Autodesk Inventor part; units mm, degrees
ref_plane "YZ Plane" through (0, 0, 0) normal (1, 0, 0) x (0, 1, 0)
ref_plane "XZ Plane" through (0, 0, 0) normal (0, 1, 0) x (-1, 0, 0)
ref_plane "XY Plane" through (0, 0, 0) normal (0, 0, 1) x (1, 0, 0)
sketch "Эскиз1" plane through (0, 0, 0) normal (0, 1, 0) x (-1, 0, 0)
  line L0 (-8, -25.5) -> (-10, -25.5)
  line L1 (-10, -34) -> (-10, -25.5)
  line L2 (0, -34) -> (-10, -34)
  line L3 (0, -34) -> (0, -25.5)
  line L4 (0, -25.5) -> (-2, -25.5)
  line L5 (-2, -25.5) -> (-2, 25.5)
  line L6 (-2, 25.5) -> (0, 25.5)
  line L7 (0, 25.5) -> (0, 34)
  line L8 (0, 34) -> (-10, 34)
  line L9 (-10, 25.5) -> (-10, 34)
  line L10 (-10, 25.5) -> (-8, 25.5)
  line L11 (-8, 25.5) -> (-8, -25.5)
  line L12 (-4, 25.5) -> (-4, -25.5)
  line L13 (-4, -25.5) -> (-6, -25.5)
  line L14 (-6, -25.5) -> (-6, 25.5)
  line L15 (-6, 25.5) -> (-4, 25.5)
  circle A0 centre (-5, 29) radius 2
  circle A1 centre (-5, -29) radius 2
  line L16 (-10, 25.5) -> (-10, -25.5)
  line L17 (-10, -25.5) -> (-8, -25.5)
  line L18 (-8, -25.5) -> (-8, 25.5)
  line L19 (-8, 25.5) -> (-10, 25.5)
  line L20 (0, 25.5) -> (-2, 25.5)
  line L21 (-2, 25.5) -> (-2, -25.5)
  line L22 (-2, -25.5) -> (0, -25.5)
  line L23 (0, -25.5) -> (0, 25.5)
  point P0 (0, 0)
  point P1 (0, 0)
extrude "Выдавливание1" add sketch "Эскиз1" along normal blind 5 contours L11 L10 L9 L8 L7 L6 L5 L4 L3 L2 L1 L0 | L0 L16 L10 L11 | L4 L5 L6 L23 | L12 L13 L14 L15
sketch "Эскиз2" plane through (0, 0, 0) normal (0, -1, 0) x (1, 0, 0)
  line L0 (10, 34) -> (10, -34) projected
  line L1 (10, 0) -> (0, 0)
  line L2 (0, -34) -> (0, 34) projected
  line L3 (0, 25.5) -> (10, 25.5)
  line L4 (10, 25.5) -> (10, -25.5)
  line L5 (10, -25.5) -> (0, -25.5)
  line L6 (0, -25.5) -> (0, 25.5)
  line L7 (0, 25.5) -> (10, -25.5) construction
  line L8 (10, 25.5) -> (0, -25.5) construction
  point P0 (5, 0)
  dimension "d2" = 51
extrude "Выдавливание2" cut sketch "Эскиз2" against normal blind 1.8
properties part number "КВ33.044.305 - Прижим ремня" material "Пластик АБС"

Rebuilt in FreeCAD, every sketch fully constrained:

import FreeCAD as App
import Part
import Sketcher
from FreeCAD import Vector
Q = App.Units.Quantity


def add_polygon(sketch, points):
    """Adds a closed chain of lines whose ends are joined by coincident constraints."""
    first, n = sketch.GeometryCount, len(points)
    for a, b in zip(points, points[1:] + points[:1]):
        sketch.addGeometry(Part.LineSegment(App.Vector(*a, 0), App.Vector(*b, 0)), False)
    for i in range(n):
        sketch.addConstraint(Sketcher.Constraint("Coincident", first + i, 2, first + (i + 1) % n, 1))

doc = App.newDocument("Part")
body = doc.addObject("PartDesign::Body", "Body")

# Sketch on XZ plane
sketch1 = body.newObject("Sketcher::SketchObject", "Sketch")
sketch1.AttachmentSupport = (doc.getObject("XZ_Plane"), [""])
sketch1.MapMode = "FlatFace"
add_polygon(sketch1, [(10, 34), (10, -34), (0, -34), (0, 34)])  # lines 0-3
sketch1.addGeometry(Part.Circle(Vector(5, -29, 0), Vector(0, 0, 1), 2), False)  # 4
sketch1.addGeometry(Part.Circle(Vector(5, 29, 0), Vector(0, 0, 1), 2), False)  # 5
sketch1.addConstraint([
    Sketcher.Constraint("Vertical", 0),
    Sketcher.Constraint("Horizontal", 1),
    Sketcher.Constraint("Vertical", 2),
    Sketcher.Constraint("Horizontal", 3),
    Sketcher.Constraint("Equal", 4, 5),
    Sketcher.Constraint("Symmetric", 1, 2, 2, 2, -1, 1),
    Sketcher.Constraint("Symmetric", 4, 3, 5, 3, -1),
    Sketcher.Constraint("Diameter", 4, Q("4 mm")),
    Sketcher.Constraint("DistanceX", 1, 2, 1, 1, Q("10 mm")),
    Sketcher.Constraint("DistanceY", 0, 2, 0, 1, Q("68 mm")),
    Sketcher.Constraint("DistanceX", -1, 1, 4, 3, Q("5 mm")),
    Sketcher.Constraint("DistanceY", 4, 3, -1, 1, Q("29 mm")),
])
pad1 = body.newObject("PartDesign::Pad", "Pad")
pad1.Profile = sketch1
pad1.Length = 5
pad1.Reversed = True

# Sketch on XZ plane
sketch2 = body.newObject("Sketcher::SketchObject", "Sketch001")
sketch2.AttachmentSupport = (doc.getObject("XZ_Plane"), [""])
sketch2.MapMode = "FlatFace"
add_polygon(sketch2, [(10, 25.5), (0, 25.5), (0, -25.5), (10, -25.5)])  # lines 0-3
sketch2.addConstraint([
    Sketcher.Constraint("Horizontal", 0),
    Sketcher.Constraint("Vertical", 1),
    Sketcher.Constraint("Horizontal", 2),
    Sketcher.Constraint("Vertical", 3),
    Sketcher.Constraint("Symmetric", 0, 2, 1, 2, -1, 1),
    Sketcher.Constraint("DistanceY", 1, 2, 1, 1, Q("51 mm")),
    Sketcher.Constraint("DistanceX", 0, 2, 0, 1, Q("10 mm")),
])
pocket1 = body.newObject("PartDesign::Pocket", "Pocket")
pocket1.Profile = sketch2
pocket1.Length = 1.8

doc.recompute()
